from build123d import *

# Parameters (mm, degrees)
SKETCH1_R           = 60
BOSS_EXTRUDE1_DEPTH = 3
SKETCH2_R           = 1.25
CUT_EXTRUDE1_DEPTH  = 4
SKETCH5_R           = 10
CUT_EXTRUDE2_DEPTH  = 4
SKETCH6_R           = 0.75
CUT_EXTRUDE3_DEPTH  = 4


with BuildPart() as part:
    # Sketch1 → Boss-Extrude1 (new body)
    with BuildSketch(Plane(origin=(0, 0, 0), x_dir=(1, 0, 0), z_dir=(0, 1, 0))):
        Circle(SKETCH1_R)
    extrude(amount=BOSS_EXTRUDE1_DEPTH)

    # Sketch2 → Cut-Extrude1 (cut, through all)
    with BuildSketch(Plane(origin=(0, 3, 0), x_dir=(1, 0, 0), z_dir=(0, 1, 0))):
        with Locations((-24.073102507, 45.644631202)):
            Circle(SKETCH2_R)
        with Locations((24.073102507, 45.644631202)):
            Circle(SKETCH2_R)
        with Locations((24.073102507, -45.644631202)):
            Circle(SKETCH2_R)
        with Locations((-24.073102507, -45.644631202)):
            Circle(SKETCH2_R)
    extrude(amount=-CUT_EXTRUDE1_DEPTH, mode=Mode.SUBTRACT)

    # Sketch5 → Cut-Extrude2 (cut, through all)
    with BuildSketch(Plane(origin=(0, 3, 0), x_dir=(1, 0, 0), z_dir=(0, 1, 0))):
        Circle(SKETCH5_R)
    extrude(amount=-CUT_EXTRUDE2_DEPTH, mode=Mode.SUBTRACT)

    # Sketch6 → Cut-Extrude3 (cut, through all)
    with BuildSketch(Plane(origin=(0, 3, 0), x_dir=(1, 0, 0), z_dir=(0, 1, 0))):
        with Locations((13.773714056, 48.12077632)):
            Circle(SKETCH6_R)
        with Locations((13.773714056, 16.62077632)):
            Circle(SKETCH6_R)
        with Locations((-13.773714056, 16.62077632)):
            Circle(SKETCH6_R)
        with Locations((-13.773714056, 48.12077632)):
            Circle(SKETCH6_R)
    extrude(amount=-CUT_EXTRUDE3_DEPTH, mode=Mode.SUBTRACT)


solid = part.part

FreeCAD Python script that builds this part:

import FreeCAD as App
import Part
import Sketcher
Q = App.Units.Quantity

doc = App.newDocument("Part")
body = doc.addObject("PartDesign::Body", "Body")

# Sketch on XZ plane
sketch1 = doc.addObject("Sketcher::SketchObject", "Sketch")
body.addObject(sketch1)
sketch1.AttachmentSupport = (doc.XZ_Plane, [""])
sketch1.MapMode = "FlatFace"
sketch1.addGeometry(Part.Circle(App.Vector(0, 0, 0), App.Vector(0, 0, 1), 60), False)
sketch1.addConstraint([
    Sketcher.Constraint("Coincident", 0, 3, -1, 1),
    Sketcher.Constraint("Diameter", 0, Q("120 mm")),
])
pad1 = doc.addObject("PartDesign::Pad", "Pad")
body.addObject(pad1)
pad1.Profile = sketch1
pad1.Length = 3
pad1.Reversed = True

# Sketch on XZ plane
sketch2 = doc.addObject("Sketcher::SketchObject", "Sketch001")
body.addObject(sketch2)
sketch2.AttachmentSupport = (doc.XZ_Plane, [""])
sketch2.MapMode = "FlatFace"
sketch2.AttachmentOffset = App.Placement(App.Vector(0, 0, -3), App.Rotation())
sketch2.addGeometry([
    Part.Circle(App.Vector(-24.073103, -45.644631, 0), App.Vector(0, 0, 1), 1.25),
    Part.Circle(App.Vector(24.073103, -45.644631, 0), App.Vector(0, 0, 1), 1.25),
    Part.Circle(App.Vector(24.073103, 45.644631, 0), App.Vector(0, 0, 1), 1.25),
    Part.Circle(App.Vector(-24.073103, 45.644631, 0), App.Vector(0, 0, 1), 1.25),
], False)
sketch2.addConstraint([
    Sketcher.Constraint("Equal", 0, 1),
    Sketcher.Constraint("Equal", 1, 2),
    Sketcher.Constraint("Equal", 2, 3),
    Sketcher.Constraint("Symmetric", 0, 3, 2, 3, -1, 1),
    Sketcher.Constraint("Symmetric", 1, 3, 3, 3, -1, 1),
    Sketcher.Constraint("Symmetric", 0, 3, 1, 3, -2),
    Sketcher.Constraint("Diameter", 0, Q("2.5 mm")),
    Sketcher.Constraint("DistanceY", 0, 3, -1, 1, Q("45.644631 mm")),
    Sketcher.Constraint("DistanceX", 0, 3, -1, 1, Q("24.073103 mm")),
])
pocket1 = doc.addObject("PartDesign::Pocket", "Pocket")
body.addObject(pocket1)
pocket1.Profile = sketch2
pocket1.Type = "ThroughAll"
pocket1.Reversed = True

# Sketch on XZ plane
sketch3 = doc.addObject("Sketcher::SketchObject", "Sketch002")
body.addObject(sketch3)
sketch3.AttachmentSupport = (doc.XZ_Plane, [""])
sketch3.MapMode = "FlatFace"
sketch3.AttachmentOffset = App.Placement(App.Vector(0, 0, -3), App.Rotation())
sketch3.addGeometry(Part.Circle(App.Vector(0, 0, 0), App.Vector(0, 0, 1), 10), False)
sketch3.addConstraint([
    Sketcher.Constraint("Coincident", 0, 3, -1, 1),
    Sketcher.Constraint("Diameter", 0, Q("20 mm")),
])
pocket2 = doc.addObject("PartDesign::Pocket", "Pocket001")
body.addObject(pocket2)
pocket2.Profile = sketch3
pocket2.Type = "ThroughAll"
pocket2.Reversed = True

# Sketch on XZ plane
sketch4 = doc.addObject("Sketcher::SketchObject", "Sketch003")
body.addObject(sketch4)
sketch4.AttachmentSupport = (doc.XZ_Plane, [""])
sketch4.MapMode = "FlatFace"
sketch4.AttachmentOffset = App.Placement(App.Vector(0, 0, -3), App.Rotation())
sketch4.addGeometry([
    Part.Circle(App.Vector(13.773714, -48.120776, 0), App.Vector(0, 0, 1), 0.75),
    Part.Circle(App.Vector(13.773714, -16.620776, 0), App.Vector(0, 0, 1), 0.75),
    Part.Circle(App.Vector(-13.773714, -16.620776, 0), App.Vector(0, 0, 1), 0.75),
    Part.Circle(App.Vector(-13.773714, -48.120776, 0), App.Vector(0, 0, 1), 0.75),
], False)
sketch4.addConstraint([
    Sketcher.Constraint("Equal", 0, 1),
    Sketcher.Constraint("Equal", 1, 2),
    Sketcher.Constraint("Equal", 2, 3),
    Sketcher.Constraint("Symmetric", 1, 3, 2, 3, -2),
    Sketcher.Constraint("Symmetric", 0, 3, 3, 3, -2),
    Sketcher.Constraint("Vertical", 0, 3, 1, 3),
    Sketcher.Constraint("Diameter", 0, Q("1.5 mm")),
    Sketcher.Constraint("DistanceY", 0, 3, 1, 3, Q("31.5 mm")),
    Sketcher.Constraint("DistanceX", 2, 3, 1, 3, Q("27.547428 mm")),
    Sketcher.Constraint("DistanceY", 0, 3, -1, 1, Q("48.120776 mm")),
])
pocket3 = doc.addObject("PartDesign::Pocket", "Pocket002")
body.addObject(pocket3)
pocket3.Profile = sketch4
pocket3.Type = "ThroughAll"
pocket3.Reversed = True

doc.recompute()
